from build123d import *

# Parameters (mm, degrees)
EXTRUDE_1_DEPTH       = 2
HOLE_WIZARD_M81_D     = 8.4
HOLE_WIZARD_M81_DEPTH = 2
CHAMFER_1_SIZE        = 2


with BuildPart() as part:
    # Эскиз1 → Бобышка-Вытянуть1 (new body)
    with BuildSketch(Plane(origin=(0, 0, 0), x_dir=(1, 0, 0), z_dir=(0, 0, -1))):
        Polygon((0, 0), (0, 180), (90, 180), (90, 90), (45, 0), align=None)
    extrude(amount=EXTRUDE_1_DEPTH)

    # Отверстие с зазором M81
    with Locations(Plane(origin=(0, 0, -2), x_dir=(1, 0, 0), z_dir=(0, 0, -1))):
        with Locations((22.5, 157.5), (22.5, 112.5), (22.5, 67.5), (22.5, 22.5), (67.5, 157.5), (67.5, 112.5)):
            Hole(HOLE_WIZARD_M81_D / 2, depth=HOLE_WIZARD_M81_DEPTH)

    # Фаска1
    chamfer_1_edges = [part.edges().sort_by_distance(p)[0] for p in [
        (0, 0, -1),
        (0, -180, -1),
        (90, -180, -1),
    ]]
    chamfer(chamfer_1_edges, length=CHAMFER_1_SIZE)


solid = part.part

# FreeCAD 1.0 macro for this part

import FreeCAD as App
import Part
import Sketcher

V = App.Vector


def edges_at(feature, points):
    """Names of the edges that pass closest to the given points."""
    edges = feature.Shape.Edges
    near = lambda p: min(range(len(edges)), key=lambda i: edges[i].distToShape(Part.Vertex(*p))[0])
    return sorted({f"Edge{near(p) + 1}" for p in points})


def add_polygon(sketch, points):
    """Adds a closed chain of lines whose ends are joined by coincident constraints."""
    first, n = sketch.GeometryCount, len(points)
    for a, b in zip(points, points[1:] + points[:1]):
        sketch.addGeometry(Part.LineSegment(App.Vector(*a, 0), App.Vector(*b, 0)), False)
    for i in range(n):
        sketch.addConstraint(Sketcher.Constraint("Coincident", first + i, 2, first + (i + 1) % n, 1))

doc = App.newDocument("Part")
body = doc.addObject("PartDesign::Body", "Body")

# Sketch on XY plane
sketch1 = doc.addObject("Sketcher::SketchObject", "Sketch")
body.addObject(sketch1)
sketch1.AttachmentSupport = (doc.XY_Plane, [""])
sketch1.MapMode = "FlatFace"
add_polygon(sketch1, [(0, -180), (0, 0), (45, 0), (90, -90), (90, -180)])  # lines 0-4
sketch1.addConstraint([
    Sketcher.Constraint("Vertical", 0),
    Sketcher.Constraint("Horizontal", 1),
    Sketcher.Constraint("Vertical", 3),
    Sketcher.Constraint("Horizontal", 4),
    Sketcher.Constraint("Coincident", 0, 2, -1, 1),
    Sketcher.Constraint("Equal", 4, 3),
    Sketcher.Constraint("DistanceX", 1, 1, 1, 2, 45.0),
    Sketcher.Constraint("DistanceX", 4, 2, 4, 1, 90.0),
    Sketcher.Constraint("DistanceY", 0, 1, 0, 2, 180.0),
])
pad1 = doc.addObject("PartDesign::Pad", "Pad")
body.addObject(pad1)
pad1.Profile = sketch1
pad1.Length = 2
pad1.Reversed = True

# Sketch on XY plane
sketch2 = doc.addObject("Sketcher::SketchObject", "Sketch001")
body.addObject(sketch2)
sketch2.AttachmentSupport = (doc.XY_Plane, [""])
sketch2.MapMode = "FlatFace"
sketch2.AttachmentOffset = App.Placement(V(0, 0, -2), App.Rotation())
sketch2.addGeometry([
    Part.Circle(V(22.5, -157.5, 0), V(0, 0, 1), 4.2),  # 0
    Part.Circle(V(22.5, -112.5, 0), V(0, 0, 1), 4.2),  # 1
    Part.Circle(V(22.5, -67.5, 0), V(0, 0, 1), 4.2),  # 2
    Part.Circle(V(22.5, -22.5, 0), V(0, 0, 1), 4.2),  # 3
    Part.Circle(V(67.5, -157.5, 0), V(0, 0, 1), 4.2),  # 4
    Part.Circle(V(67.5, -112.5, 0), V(0, 0, 1), 4.2),  # 5
], False)
sketch2.addConstraint([
    Sketcher.Constraint("Equal", 0, 1),
    Sketcher.Constraint("Equal", 1, 2),
    Sketcher.Constraint("Equal", 2, 3),
    Sketcher.Constraint("Equal", 3, 4),
    Sketcher.Constraint("Equal", 4, 5),
    Sketcher.Constraint("Horizontal", 0, 3, 4, 3),
    Sketcher.Constraint("Horizontal", 1, 3, 5, 3),
    Sketcher.Constraint("Vertical", 0, 3, 1, 3),
    Sketcher.Constraint("Vertical", 1, 3, 2, 3),
    Sketcher.Constraint("Vertical", 2, 3, 3, 3),
    Sketcher.Constraint("Vertical", 4, 3, 5, 3),
    Sketcher.Constraint("Diameter", 0, 8.4),
    Sketcher.Constraint("DistanceY", 0, 3, 1, 3, 45.0),
    Sketcher.Constraint("DistanceY", 1, 3, 2, 3, 45.0),
    Sketcher.Constraint("DistanceY", 2, 3, 3, 3, 45.0),
    Sketcher.Constraint("DistanceX", 0, 3, 4, 3, 45.0),
    Sketcher.Constraint("DistanceX", -1, 1, 0, 3, 22.5),
    Sketcher.Constraint("DistanceY", 0, 3, -1, 1, 157.5),
])
doc.recompute()
hole = doc.addObject("PartDesign::Hole", "Hole")
body.addObject(hole)
hole.Profile = sketch2
hole.ThreadType = "None"
hole.Diameter = 8.4
hole.DepthType = "Dimension"
hole.Depth = 2
hole.DrillPoint = "Flat"
hole.Reversed = True
doc.recompute()

chamfer = doc.addObject("PartDesign::Chamfer", "Chamfer")
body.addObject(chamfer)
chamfer.Base = (hole, edges_at(hole, [(0, 0, -1), (0, -180, -1), (90, -180, -1)]))
chamfer.Size = 2

doc.recompute()
